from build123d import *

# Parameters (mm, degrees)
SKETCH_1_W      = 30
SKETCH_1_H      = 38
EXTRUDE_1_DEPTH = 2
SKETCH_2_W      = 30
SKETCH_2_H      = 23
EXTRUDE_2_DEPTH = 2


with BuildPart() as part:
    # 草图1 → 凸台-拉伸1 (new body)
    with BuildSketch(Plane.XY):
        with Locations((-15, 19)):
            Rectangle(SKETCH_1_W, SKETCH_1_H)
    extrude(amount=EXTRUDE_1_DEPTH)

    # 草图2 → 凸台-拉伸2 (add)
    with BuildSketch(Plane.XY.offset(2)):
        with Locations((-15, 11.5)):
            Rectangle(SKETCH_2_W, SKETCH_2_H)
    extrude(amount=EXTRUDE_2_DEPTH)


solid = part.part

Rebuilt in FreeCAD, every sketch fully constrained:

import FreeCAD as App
import Part
import Sketcher
from FreeCAD import Vector
Q = App.Units.Quantity

doc = App.newDocument("Part")
params = doc.addObject("Spreadsheet::Sheet", "Params")
for row, (alias, value) in enumerate([
    ("sketch1_width", "30 mm"),
    ("sketch1_height", "38 mm"),
    ("pad1_length", "2 mm"),
    ("sketch2_width", "30 mm"),
    ("sketch2_height", "23 mm"),
    ("pad2_length", "2 mm"),
], start=1):
    params.set(f"A{row}", alias)
    params.set(f"B{row}", "=" + value)
    params.setAlias(f"B{row}", alias)

body = doc.addObject("PartDesign::Body", "Body")

sketch1 = body.newObject("Sketcher::SketchObject", "Sketch")
sketch1.AttachmentSupport = (doc.getObject("XY_Plane"), [""])
sketch1.MapMode = "FlatFace"
sketch1.addGeometry([
    Part.LineSegment(Vector(-30, 38, 0), Vector(-30, 0, 0)),
    Part.LineSegment(Vector(-30, 0, 0), Vector(0, 0, 0)),
    Part.LineSegment(Vector(0, 0, 0), Vector(0, 38, 0)),
    Part.LineSegment(Vector(0, 38, 0), Vector(-30, 38, 0)),
], False)
sketch1.addConstraint([
    Sketcher.Constraint("Coincident", 0, 2, 1, 1),
    Sketcher.Constraint("Coincident", 1, 2, 2, 1),
    Sketcher.Constraint("Coincident", 2, 2, 3, 1),
    Sketcher.Constraint("Coincident", 3, 2, 0, 1),
    Sketcher.Constraint("Vertical", 0),
    Sketcher.Constraint("Horizontal", 1),
    Sketcher.Constraint("Vertical", 2),
    Sketcher.Constraint("Horizontal", 3),
    Sketcher.Constraint("Coincident", 1, 2, -1, 1),
    Sketcher.Constraint("DistanceX", 1, 1, 1, 2, Q("30 mm")),
    Sketcher.Constraint("DistanceY", 0, 2, 0, 1, Q("38 mm")),
])
sketch1.setExpression("Constraints[9]", "Params.sketch1_width")
sketch1.setExpression("Constraints[10]", "Params.sketch1_height")
pad1 = body.newObject("PartDesign::Pad", "Pad")
pad1.Profile = sketch1
pad1.setExpression("Length", "Params.pad1_length")

sketch2 = body.newObject("Sketcher::SketchObject", "Sketch001")
sketch2.AttachmentSupport = (doc.getObject("XY_Plane"), [""])
sketch2.MapMode = "FlatFace"
sketch2.AttachmentOffset = App.Placement(Vector(0, 0, 2), App.Rotation())
sketch2.addGeometry([
    Part.LineSegment(Vector(-30, 23, 0), Vector(-30, 0, 0)),
    Part.LineSegment(Vector(-30, 0, 0), Vector(0, 0, 0)),
    Part.LineSegment(Vector(0, 0, 0), Vector(0, 23, 0)),
    Part.LineSegment(Vector(0, 23, 0), Vector(-30, 23, 0)),
], False)
sketch2.addConstraint([
    Sketcher.Constraint("Coincident", 0, 2, 1, 1),
    Sketcher.Constraint("Coincident", 1, 2, 2, 1),
    Sketcher.Constraint("Coincident", 2, 2, 3, 1),
    Sketcher.Constraint("Coincident", 3, 2, 0, 1),
    Sketcher.Constraint("Vertical", 0),
    Sketcher.Constraint("Horizontal", 1),
    Sketcher.Constraint("Vertical", 2),
    Sketcher.Constraint("Horizontal", 3),
    Sketcher.Constraint("Coincident", 1, 2, -1, 1),
    Sketcher.Constraint("DistanceX", 1, 1, 1, 2, Q("30 mm")),
    Sketcher.Constraint("DistanceY", 0, 2, 0, 1, Q("23 mm")),
])
sketch2.setExpression("Constraints[9]", "Params.sketch2_width")
sketch2.setExpression("Constraints[10]", "Params.sketch2_height")
pad2 = body.newObject("PartDesign::Pad", "Pad001")
pad2.Profile = sketch2
pad2.setExpression("Length", "Params.pad2_length")

doc.recompute()
